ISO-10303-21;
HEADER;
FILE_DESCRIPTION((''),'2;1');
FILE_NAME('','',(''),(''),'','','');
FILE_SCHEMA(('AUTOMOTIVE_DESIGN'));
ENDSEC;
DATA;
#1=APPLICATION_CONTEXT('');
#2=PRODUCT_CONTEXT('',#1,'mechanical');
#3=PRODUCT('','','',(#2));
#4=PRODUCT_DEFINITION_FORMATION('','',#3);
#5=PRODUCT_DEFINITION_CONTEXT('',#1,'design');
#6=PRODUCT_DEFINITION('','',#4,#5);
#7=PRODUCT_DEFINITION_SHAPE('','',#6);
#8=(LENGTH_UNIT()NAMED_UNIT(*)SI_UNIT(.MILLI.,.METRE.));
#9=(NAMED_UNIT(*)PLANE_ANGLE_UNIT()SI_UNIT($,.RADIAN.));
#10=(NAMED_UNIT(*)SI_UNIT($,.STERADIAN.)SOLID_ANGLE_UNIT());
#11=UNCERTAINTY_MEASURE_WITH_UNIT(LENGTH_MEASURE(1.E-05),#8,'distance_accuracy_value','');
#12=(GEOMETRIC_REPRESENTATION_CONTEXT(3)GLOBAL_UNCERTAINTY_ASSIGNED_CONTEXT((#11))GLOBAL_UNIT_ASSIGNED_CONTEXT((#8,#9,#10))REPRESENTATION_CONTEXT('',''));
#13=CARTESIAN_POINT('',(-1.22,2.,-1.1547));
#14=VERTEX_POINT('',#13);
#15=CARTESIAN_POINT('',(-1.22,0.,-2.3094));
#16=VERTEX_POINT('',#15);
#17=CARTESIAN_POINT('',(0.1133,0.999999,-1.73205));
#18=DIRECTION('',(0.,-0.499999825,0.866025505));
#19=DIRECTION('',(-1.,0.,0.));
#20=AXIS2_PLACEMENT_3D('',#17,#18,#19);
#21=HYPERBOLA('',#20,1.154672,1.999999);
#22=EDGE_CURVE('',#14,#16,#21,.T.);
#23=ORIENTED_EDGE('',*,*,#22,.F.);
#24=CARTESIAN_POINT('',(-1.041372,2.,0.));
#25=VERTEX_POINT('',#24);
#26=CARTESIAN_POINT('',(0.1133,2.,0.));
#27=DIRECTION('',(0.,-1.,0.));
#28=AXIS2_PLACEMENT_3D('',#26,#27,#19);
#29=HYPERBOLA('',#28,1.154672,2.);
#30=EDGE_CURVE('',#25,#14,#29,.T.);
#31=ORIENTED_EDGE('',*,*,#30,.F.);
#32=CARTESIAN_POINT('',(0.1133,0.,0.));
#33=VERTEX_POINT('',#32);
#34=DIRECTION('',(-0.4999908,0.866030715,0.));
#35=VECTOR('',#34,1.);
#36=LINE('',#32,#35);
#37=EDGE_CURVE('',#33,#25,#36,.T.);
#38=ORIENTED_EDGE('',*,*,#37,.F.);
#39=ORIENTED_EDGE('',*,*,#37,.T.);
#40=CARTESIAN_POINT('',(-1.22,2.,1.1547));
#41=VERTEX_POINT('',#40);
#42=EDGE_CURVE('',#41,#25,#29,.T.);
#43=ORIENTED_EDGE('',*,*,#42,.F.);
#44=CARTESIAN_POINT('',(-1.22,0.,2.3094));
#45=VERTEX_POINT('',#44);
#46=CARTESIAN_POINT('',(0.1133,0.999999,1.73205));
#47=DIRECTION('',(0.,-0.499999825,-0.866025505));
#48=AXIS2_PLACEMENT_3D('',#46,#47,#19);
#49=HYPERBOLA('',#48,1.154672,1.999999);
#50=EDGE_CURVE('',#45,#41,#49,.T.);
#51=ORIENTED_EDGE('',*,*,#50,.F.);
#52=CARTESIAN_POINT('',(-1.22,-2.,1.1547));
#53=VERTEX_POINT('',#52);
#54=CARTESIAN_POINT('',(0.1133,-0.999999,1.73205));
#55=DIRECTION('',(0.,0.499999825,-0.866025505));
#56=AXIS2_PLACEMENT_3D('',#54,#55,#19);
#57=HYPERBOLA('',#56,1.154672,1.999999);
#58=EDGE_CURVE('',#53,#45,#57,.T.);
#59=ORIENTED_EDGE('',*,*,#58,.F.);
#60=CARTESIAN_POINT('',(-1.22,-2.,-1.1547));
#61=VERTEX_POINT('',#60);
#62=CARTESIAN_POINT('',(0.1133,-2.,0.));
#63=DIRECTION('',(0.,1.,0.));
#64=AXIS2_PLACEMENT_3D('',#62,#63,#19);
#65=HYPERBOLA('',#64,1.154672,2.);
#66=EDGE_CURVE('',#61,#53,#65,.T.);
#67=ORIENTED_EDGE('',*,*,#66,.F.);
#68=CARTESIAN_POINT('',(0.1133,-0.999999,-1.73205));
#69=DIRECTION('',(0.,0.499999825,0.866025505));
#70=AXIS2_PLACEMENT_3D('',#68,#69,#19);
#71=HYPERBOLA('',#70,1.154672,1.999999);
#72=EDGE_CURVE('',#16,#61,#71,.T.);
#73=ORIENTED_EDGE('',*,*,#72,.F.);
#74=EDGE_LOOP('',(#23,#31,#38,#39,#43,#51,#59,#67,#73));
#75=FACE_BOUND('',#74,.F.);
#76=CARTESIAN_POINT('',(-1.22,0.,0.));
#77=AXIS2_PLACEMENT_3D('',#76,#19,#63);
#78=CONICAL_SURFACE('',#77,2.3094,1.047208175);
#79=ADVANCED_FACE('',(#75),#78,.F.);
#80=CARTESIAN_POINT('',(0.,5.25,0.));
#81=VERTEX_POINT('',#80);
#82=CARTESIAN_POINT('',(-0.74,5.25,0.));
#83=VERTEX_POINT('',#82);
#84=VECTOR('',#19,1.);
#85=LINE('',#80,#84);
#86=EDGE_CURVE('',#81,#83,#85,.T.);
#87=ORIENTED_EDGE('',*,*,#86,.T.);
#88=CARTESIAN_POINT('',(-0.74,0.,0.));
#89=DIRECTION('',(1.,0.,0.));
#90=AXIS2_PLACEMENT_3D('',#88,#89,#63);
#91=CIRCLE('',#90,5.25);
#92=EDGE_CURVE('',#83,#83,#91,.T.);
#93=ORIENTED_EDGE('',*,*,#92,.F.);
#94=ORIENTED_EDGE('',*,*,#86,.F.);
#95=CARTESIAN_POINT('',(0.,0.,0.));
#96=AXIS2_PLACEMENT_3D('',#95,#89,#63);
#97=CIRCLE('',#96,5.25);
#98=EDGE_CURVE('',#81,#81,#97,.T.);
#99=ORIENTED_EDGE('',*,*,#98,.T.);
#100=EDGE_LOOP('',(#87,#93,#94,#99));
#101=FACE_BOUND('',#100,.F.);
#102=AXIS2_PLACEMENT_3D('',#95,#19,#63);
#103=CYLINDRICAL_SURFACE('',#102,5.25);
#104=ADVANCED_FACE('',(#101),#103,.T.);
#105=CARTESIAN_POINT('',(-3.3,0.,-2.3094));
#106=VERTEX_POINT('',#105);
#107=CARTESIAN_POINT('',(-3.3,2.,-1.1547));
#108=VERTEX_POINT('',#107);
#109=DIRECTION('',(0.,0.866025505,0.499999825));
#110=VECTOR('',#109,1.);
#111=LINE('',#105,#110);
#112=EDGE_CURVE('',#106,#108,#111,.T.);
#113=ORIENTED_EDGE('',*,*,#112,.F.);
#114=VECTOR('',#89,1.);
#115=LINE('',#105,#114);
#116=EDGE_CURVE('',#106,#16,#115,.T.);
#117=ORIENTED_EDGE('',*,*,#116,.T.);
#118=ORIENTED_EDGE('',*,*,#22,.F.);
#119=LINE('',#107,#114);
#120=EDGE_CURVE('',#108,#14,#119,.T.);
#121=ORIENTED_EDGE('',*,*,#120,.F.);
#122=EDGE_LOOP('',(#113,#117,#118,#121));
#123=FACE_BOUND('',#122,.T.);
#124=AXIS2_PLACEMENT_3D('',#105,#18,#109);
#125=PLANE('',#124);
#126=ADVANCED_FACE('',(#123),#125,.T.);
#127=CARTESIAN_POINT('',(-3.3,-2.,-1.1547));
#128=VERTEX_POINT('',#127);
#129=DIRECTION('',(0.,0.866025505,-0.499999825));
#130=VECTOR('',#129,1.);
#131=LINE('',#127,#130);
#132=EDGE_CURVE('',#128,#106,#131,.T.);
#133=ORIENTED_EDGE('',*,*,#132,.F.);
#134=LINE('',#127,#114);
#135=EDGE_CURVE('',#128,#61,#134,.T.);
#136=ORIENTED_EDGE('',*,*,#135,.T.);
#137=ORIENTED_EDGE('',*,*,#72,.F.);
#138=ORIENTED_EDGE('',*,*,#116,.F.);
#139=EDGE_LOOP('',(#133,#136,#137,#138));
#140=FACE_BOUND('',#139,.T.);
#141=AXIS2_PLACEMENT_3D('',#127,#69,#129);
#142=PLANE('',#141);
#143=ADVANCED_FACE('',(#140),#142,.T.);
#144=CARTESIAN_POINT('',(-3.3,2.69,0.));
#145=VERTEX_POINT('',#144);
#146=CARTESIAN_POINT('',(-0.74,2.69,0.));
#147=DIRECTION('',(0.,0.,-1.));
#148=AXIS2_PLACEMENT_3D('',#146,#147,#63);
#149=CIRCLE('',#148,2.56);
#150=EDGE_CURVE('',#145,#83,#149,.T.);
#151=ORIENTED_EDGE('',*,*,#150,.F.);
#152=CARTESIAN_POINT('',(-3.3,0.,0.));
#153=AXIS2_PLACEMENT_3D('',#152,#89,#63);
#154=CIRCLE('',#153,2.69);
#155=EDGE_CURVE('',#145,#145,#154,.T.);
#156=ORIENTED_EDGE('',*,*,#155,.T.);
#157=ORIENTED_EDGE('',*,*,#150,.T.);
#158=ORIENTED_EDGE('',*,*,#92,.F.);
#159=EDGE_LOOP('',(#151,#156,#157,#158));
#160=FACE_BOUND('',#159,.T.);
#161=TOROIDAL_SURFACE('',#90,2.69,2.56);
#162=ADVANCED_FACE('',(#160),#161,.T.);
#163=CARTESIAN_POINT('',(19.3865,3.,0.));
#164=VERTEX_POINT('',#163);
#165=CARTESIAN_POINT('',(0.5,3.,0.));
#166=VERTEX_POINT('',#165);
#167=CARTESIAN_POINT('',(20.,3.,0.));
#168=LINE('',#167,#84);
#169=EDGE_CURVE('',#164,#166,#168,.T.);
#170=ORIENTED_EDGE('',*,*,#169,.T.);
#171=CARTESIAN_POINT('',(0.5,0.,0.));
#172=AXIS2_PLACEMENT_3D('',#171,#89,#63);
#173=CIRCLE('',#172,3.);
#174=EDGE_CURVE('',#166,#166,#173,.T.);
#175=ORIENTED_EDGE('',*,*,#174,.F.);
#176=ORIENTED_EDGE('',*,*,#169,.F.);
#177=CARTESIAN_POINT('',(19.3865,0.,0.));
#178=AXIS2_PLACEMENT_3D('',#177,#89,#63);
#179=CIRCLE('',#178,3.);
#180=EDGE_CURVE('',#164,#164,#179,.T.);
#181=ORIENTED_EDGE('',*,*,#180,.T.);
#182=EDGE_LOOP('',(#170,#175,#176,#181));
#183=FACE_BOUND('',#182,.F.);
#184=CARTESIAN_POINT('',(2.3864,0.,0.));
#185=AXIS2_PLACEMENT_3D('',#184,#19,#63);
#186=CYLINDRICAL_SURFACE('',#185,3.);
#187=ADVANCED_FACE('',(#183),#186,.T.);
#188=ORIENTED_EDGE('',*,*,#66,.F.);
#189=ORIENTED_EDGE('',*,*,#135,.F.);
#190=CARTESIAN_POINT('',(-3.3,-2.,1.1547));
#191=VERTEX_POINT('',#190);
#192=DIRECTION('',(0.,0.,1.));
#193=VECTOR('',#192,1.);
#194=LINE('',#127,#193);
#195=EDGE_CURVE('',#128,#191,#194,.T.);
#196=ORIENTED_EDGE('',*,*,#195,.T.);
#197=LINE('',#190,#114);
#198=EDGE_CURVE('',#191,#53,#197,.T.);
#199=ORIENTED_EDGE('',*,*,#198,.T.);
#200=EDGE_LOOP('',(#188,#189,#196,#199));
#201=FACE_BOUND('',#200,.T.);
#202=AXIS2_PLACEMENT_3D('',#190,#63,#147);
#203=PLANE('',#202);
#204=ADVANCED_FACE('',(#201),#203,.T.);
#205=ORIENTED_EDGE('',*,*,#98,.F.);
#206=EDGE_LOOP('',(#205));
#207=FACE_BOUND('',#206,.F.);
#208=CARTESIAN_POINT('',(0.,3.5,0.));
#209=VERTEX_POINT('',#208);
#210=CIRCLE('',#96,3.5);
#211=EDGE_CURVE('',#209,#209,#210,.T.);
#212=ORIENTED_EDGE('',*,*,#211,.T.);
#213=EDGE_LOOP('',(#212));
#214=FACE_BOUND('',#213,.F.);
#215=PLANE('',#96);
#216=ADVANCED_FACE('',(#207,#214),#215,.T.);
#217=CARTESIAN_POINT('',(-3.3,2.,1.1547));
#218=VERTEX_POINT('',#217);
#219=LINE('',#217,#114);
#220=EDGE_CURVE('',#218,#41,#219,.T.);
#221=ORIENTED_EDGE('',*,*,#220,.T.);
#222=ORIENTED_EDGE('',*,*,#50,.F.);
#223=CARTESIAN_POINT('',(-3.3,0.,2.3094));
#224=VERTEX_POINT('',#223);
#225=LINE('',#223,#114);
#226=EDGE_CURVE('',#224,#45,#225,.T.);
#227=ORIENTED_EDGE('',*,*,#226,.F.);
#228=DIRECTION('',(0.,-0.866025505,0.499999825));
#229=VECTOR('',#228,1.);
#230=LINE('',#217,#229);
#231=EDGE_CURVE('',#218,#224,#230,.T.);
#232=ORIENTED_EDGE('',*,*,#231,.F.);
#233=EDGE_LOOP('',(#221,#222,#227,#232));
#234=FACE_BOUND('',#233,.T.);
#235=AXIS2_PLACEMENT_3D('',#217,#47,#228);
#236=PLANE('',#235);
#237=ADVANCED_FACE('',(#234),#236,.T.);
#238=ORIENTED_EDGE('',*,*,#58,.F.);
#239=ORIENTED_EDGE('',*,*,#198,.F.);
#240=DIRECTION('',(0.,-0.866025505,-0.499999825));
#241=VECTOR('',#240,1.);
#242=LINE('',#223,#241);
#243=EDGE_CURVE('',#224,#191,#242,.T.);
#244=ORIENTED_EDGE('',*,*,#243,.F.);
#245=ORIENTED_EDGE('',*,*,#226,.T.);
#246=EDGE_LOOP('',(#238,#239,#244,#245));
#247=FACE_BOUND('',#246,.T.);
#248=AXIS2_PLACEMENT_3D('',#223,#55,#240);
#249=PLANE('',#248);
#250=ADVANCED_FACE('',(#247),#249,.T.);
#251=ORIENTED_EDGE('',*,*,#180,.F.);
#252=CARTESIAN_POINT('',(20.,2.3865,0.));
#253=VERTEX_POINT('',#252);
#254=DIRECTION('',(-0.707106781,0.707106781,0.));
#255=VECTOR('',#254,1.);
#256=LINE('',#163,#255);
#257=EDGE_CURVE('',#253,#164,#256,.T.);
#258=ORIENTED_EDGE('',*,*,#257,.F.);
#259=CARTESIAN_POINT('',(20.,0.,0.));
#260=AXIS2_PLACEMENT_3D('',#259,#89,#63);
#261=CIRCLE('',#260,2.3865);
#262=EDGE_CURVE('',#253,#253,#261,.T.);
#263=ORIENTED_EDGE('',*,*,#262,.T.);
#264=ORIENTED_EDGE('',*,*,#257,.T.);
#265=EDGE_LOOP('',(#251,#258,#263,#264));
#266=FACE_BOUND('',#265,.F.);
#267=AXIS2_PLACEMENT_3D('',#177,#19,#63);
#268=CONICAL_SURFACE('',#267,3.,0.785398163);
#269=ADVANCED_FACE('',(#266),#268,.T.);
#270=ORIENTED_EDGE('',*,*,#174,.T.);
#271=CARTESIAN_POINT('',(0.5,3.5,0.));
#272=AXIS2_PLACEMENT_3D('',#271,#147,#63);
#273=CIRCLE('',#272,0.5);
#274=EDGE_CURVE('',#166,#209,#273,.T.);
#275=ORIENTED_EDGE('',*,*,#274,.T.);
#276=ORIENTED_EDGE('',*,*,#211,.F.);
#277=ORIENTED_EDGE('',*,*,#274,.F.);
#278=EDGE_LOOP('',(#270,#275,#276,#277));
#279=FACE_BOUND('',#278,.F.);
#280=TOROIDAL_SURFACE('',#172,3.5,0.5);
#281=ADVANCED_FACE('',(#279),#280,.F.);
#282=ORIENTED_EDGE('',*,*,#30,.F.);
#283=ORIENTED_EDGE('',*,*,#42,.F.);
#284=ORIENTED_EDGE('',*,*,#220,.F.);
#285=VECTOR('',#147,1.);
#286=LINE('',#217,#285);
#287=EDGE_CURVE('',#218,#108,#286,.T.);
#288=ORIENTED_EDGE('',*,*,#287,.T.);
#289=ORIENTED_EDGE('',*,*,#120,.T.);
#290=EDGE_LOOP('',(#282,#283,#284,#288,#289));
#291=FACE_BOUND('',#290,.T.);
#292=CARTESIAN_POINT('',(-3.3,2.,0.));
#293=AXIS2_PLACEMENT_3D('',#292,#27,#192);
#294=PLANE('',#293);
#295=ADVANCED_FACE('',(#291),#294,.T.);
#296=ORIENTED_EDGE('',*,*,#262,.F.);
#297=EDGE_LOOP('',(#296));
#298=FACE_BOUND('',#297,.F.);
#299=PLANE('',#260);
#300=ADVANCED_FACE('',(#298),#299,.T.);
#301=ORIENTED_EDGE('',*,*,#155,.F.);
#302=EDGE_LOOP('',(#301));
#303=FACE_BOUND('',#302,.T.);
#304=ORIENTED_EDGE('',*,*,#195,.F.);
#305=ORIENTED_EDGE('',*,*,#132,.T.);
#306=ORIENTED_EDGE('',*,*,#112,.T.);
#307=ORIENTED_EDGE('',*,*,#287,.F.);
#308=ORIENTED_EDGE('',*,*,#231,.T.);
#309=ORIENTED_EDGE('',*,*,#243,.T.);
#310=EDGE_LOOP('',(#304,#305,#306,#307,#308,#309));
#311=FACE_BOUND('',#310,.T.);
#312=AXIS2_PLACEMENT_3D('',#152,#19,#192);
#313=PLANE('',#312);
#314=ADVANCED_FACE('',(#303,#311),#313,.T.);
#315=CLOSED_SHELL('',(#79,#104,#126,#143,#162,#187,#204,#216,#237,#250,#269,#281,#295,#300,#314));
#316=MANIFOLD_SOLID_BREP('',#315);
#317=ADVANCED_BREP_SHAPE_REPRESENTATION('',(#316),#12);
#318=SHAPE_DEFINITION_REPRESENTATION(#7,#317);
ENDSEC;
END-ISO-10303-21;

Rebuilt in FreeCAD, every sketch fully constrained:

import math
import FreeCAD as App
import Part
import Sketcher
Q = App.Units.Quantity


def edges_at(feature, points):
    """Names of the edges that pass closest to the given points."""
    edges = feature.Shape.Edges
    near = lambda p: min(range(len(edges)), key=lambda i: edges[i].distToShape(Part.Vertex(*p))[0])
    return sorted({f"Edge{near(p) + 1}" for p in points})

doc = App.newDocument("Part")
body = doc.addObject("PartDesign::Body", "Body")

# Sketch on XY plane
sketch1 = body.newObject("Sketcher::SketchObject", "Sketch")
sketch1.AttachmentSupport = (doc.getObject("XY_Plane"), [""])
sketch1.MapMode = "FlatFace"
sketch1.addGeometry(Part.LineSegment(App.Vector(0.1133, 0, 0), App.Vector(20, 0, 0)), False)
sketch1.addGeometry(Part.LineSegment(App.Vector(20, 0, 0), App.Vector(20, 3, 0)), False)
sketch1.addGeometry(Part.LineSegment(App.Vector(20, 3, 0), App.Vector(0, 3, 0)), False)
sketch1.addGeometry(Part.LineSegment(App.Vector(0, 3, 0), App.Vector(0, 5.25, 0)), False)
sketch1.addGeometry(Part.LineSegment(App.Vector(0, 5.25, 0), App.Vector(-3.3, 5.25, 0)), False)
sketch1.addGeometry(Part.LineSegment(App.Vector(-3.3, 5.25, 0), App.Vector(-3.3, 2.3094, 0)), False)
sketch1.addGeometry(Part.LineSegment(App.Vector(-3.3, 2.3094, 0), App.Vector(-1.22, 2.3094, 0)), False)
sketch1.addGeometry(Part.LineSegment(App.Vector(-1.22, 2.3094, 0), App.Vector(0.1133, 0, 0)), False)
sketch1.addConstraint(Sketcher.Constraint("Coincident", 0, 2, 1, 1))
sketch1.addConstraint(Sketcher.Constraint("Coincident", 1, 2, 2, 1))
sketch1.addConstraint(Sketcher.Constraint("Coincident", 2, 2, 3, 1))
sketch1.addConstraint(Sketcher.Constraint("Coincident", 3, 2, 4, 1))
sketch1.addConstraint(Sketcher.Constraint("Coincident", 4, 2, 5, 1))
sketch1.addConstraint(Sketcher.Constraint("Coincident", 5, 2, 6, 1))
sketch1.addConstraint(Sketcher.Constraint("Coincident", 6, 2, 7, 1))
sketch1.addConstraint(Sketcher.Constraint("Coincident", 7, 2, 0, 1))
sketch1.addConstraint(Sketcher.Constraint("Horizontal", 0))
sketch1.addConstraint(Sketcher.Constraint("Vertical", 1))
sketch1.addConstraint(Sketcher.Constraint("Horizontal", 2))
sketch1.addConstraint(Sketcher.Constraint("Vertical", 3))
sketch1.addConstraint(Sketcher.Constraint("Horizontal", 4))
sketch1.addConstraint(Sketcher.Constraint("Vertical", 5))
sketch1.addConstraint(Sketcher.Constraint("Horizontal", 6))
sketch1.addConstraint(Sketcher.Constraint("PointOnObject", 0, 2, -1))
sketch1.addConstraint(Sketcher.Constraint("PointOnObject", 2, 2, -2))
sketch1.addConstraint(Sketcher.Constraint("DistanceX", 2, 2, 2, 1, 20.0))
sketch1.addConstraint(Sketcher.Constraint("DistanceX", 4, 2, 4, 1, 3.3))
sketch1.addConstraint(Sketcher.Constraint("DistanceX", 6, 1, 6, 2, 2.08))
sketch1.addConstraint(Sketcher.Constraint("DistanceY", 1, 1, 1, 2, 3.0))
sketch1.addConstraint(Sketcher.Constraint("Angle", 7, Q("-60.0006 deg")))
sketch1.addConstraint(Sketcher.Constraint("DistanceY", 3, 1, 3, 2, 2.25))
sketch1.addConstraint(Sketcher.Constraint("DistanceX", 0, 1, 0, 2, 19.8867))
revolution = body.newObject("PartDesign::Revolution", "Revolution")
revolution.Profile = sketch1
revolution.ReferenceAxis = (sketch1, ["H_Axis"])
revolution.Angle = 360

# Sketch on YZ plane
sketch2 = body.newObject("Sketcher::SketchObject", "Sketch001")
sketch2.AttachmentSupport = (doc.getObject("YZ_Plane"), [""])
sketch2.MapMode = "FlatFace"
sketch2.AttachmentOffset = App.Placement(App.Vector(0, 0, -3.3), App.Rotation())
sketch2.addGeometry(Part.LineSegment(App.Vector(2, 1.1547, 0), App.Vector(0, 2.3094, 0)), False)
sketch2.addGeometry(Part.ArcOfCircle(Part.Circle(App.Vector(0, 0, 0), App.Vector(0, 0, 1), 2.3094), math.radians(29.999988), math.radians(90)), False)
sketch2.addGeometry(Part.ArcOfCircle(Part.Circle(App.Vector(0, 0, 0), App.Vector(0, 0, 1), 2.3094), math.radians(90), math.radians(150.000012)), False)
sketch2.addGeometry(Part.LineSegment(App.Vector(0, 2.3094, 0), App.Vector(-2, 1.1547, 0)), False)
sketch2.addGeometry(Part.ArcOfCircle(Part.Circle(App.Vector(0, 0, 0), App.Vector(0, 0, 1), 2.3094), math.radians(-29.999988), math.radians(29.999988)), False)
sketch2.addGeometry(Part.LineSegment(App.Vector(2, -1.1547, 0), App.Vector(2, 1.1547, 0)), False)
sketch2.addGeometry(Part.LineSegment(App.Vector(-2, 1.1547, 0), App.Vector(-2, -1.1547, 0)), False)
sketch2.addGeometry(Part.ArcOfCircle(Part.Circle(App.Vector(0, 0, 0), App.Vector(0, 0, 1), 2.3094), math.radians(150.000012), math.radians(209.999988)), False)
sketch2.addGeometry(Part.LineSegment(App.Vector(-2, -1.1547, 0), App.Vector(0, -2.3094, 0)), False)
sketch2.addGeometry(Part.ArcOfCircle(Part.Circle(App.Vector(0, 0, 0), App.Vector(0, 0, 1), 2.3094), math.radians(-150.000012), math.radians(-90)), False)
sketch2.addGeometry(Part.ArcOfCircle(Part.Circle(App.Vector(0, 0, 0), App.Vector(0, 0, 1), 2.3094), math.radians(-90), math.radians(-29.999988)), False)
sketch2.addGeometry(Part.LineSegment(App.Vector(0, -2.3094, 0), App.Vector(2, -1.1547, 0)), False)
sketch2.addConstraint(Sketcher.Constraint("Coincident", 0, 1, 1, 1))
sketch2.addConstraint(Sketcher.Constraint("Coincident", 1, 2, 0, 2))
sketch2.addConstraint(Sketcher.Constraint("Coincident", 2, 1, 3, 1))
sketch2.addConstraint(Sketcher.Constraint("Coincident", 3, 2, 2, 2))
sketch2.addConstraint(Sketcher.Constraint("Coincident", 4, 1, 5, 1))
sketch2.addConstraint(Sketcher.Constraint("Coincident", 5, 2, 4, 2))
sketch2.addConstraint(Sketcher.Constraint("Coincident", 6, 1, 7, 1))
sketch2.addConstraint(Sketcher.Constraint("Coincident", 7, 2, 6, 2))
sketch2.addConstraint(Sketcher.Constraint("Coincident", 8, 1, 9, 1))
sketch2.addConstraint(Sketcher.Constraint("Coincident", 9, 2, 8, 2))
sketch2.addConstraint(Sketcher.Constraint("Coincident", 10, 1, 11, 1))
sketch2.addConstraint(Sketcher.Constraint("Coincident", 11, 2, 10, 2))
sketch2.addConstraint(Sketcher.Constraint("Vertical", 5))
sketch2.addConstraint(Sketcher.Constraint("Vertical", 6))
sketch2.addConstraint(Sketcher.Constraint("Coincident", 1, 3, -1, 1))
sketch2.addConstraint(Sketcher.Constraint("Coincident", 2, 3, -1, 1))
sketch2.addConstraint(Sketcher.Constraint("Coincident", 4, 3, -1, 1))
sketch2.addConstraint(Sketcher.Constraint("Coincident", 7, 3, -1, 1))
sketch2.addConstraint(Sketcher.Constraint("Coincident", 9, 3, -1, 1))
sketch2.addConstraint(Sketcher.Constraint("Coincident", 10, 3, -1, 1))
sketch2.addConstraint(Sketcher.Constraint("Coincident", 2, 1, 1, 2))
sketch2.addConstraint(Sketcher.Constraint("Coincident", 5, 2, 0, 1))
sketch2.addConstraint(Sketcher.Constraint("Coincident", 6, 1, 3, 2))
sketch2.addConstraint(Sketcher.Constraint("Coincident", 8, 1, 7, 2))
sketch2.addConstraint(Sketcher.Constraint("Coincident", 10, 1, 9, 2))
sketch2.addConstraint(Sketcher.Constraint("PointOnObject", 1, 2, -2))
sketch2.addConstraint(Sketcher.Constraint("PointOnObject", 9, 2, -2))
sketch2.addConstraint(Sketcher.Constraint("Parallel", 0, 8))
sketch2.addConstraint(Sketcher.Constraint("Parallel", 3, 11))
sketch2.addConstraint(Sketcher.Constraint("Angle", 0, Q("150 deg")))
sketch2.addConstraint(Sketcher.Constraint("DistanceX", -1, 1, 0, 1, 2.0))
pad1 = body.newObject("PartDesign::Pad", "Pad")
pad1.Profile = sketch2
pad1.Length = 2.2586
doc.recompute()

fillet = body.newObject("PartDesign::Fillet", "Fillet")
fillet.Base = (pad1, edges_at(pad1, [(-3.3, -5.25, 0)]))
fillet.Radius = 2.56
doc.recompute()

chamfer = body.newObject("PartDesign::Chamfer", "Chamfer")
chamfer.Base = (fillet, edges_at(fillet, [(20, -3, 0)]))
chamfer.ChamferType = "Two distances"
chamfer.Size = 0.6135
chamfer.Size2 = 0.6135
doc.recompute()

fillet2 = body.newObject("PartDesign::Fillet", "Fillet001")
fillet2.Base = (chamfer, edges_at(chamfer, [(0, -3, 0)]))
fillet2.Radius = 0.5

doc.recompute()
